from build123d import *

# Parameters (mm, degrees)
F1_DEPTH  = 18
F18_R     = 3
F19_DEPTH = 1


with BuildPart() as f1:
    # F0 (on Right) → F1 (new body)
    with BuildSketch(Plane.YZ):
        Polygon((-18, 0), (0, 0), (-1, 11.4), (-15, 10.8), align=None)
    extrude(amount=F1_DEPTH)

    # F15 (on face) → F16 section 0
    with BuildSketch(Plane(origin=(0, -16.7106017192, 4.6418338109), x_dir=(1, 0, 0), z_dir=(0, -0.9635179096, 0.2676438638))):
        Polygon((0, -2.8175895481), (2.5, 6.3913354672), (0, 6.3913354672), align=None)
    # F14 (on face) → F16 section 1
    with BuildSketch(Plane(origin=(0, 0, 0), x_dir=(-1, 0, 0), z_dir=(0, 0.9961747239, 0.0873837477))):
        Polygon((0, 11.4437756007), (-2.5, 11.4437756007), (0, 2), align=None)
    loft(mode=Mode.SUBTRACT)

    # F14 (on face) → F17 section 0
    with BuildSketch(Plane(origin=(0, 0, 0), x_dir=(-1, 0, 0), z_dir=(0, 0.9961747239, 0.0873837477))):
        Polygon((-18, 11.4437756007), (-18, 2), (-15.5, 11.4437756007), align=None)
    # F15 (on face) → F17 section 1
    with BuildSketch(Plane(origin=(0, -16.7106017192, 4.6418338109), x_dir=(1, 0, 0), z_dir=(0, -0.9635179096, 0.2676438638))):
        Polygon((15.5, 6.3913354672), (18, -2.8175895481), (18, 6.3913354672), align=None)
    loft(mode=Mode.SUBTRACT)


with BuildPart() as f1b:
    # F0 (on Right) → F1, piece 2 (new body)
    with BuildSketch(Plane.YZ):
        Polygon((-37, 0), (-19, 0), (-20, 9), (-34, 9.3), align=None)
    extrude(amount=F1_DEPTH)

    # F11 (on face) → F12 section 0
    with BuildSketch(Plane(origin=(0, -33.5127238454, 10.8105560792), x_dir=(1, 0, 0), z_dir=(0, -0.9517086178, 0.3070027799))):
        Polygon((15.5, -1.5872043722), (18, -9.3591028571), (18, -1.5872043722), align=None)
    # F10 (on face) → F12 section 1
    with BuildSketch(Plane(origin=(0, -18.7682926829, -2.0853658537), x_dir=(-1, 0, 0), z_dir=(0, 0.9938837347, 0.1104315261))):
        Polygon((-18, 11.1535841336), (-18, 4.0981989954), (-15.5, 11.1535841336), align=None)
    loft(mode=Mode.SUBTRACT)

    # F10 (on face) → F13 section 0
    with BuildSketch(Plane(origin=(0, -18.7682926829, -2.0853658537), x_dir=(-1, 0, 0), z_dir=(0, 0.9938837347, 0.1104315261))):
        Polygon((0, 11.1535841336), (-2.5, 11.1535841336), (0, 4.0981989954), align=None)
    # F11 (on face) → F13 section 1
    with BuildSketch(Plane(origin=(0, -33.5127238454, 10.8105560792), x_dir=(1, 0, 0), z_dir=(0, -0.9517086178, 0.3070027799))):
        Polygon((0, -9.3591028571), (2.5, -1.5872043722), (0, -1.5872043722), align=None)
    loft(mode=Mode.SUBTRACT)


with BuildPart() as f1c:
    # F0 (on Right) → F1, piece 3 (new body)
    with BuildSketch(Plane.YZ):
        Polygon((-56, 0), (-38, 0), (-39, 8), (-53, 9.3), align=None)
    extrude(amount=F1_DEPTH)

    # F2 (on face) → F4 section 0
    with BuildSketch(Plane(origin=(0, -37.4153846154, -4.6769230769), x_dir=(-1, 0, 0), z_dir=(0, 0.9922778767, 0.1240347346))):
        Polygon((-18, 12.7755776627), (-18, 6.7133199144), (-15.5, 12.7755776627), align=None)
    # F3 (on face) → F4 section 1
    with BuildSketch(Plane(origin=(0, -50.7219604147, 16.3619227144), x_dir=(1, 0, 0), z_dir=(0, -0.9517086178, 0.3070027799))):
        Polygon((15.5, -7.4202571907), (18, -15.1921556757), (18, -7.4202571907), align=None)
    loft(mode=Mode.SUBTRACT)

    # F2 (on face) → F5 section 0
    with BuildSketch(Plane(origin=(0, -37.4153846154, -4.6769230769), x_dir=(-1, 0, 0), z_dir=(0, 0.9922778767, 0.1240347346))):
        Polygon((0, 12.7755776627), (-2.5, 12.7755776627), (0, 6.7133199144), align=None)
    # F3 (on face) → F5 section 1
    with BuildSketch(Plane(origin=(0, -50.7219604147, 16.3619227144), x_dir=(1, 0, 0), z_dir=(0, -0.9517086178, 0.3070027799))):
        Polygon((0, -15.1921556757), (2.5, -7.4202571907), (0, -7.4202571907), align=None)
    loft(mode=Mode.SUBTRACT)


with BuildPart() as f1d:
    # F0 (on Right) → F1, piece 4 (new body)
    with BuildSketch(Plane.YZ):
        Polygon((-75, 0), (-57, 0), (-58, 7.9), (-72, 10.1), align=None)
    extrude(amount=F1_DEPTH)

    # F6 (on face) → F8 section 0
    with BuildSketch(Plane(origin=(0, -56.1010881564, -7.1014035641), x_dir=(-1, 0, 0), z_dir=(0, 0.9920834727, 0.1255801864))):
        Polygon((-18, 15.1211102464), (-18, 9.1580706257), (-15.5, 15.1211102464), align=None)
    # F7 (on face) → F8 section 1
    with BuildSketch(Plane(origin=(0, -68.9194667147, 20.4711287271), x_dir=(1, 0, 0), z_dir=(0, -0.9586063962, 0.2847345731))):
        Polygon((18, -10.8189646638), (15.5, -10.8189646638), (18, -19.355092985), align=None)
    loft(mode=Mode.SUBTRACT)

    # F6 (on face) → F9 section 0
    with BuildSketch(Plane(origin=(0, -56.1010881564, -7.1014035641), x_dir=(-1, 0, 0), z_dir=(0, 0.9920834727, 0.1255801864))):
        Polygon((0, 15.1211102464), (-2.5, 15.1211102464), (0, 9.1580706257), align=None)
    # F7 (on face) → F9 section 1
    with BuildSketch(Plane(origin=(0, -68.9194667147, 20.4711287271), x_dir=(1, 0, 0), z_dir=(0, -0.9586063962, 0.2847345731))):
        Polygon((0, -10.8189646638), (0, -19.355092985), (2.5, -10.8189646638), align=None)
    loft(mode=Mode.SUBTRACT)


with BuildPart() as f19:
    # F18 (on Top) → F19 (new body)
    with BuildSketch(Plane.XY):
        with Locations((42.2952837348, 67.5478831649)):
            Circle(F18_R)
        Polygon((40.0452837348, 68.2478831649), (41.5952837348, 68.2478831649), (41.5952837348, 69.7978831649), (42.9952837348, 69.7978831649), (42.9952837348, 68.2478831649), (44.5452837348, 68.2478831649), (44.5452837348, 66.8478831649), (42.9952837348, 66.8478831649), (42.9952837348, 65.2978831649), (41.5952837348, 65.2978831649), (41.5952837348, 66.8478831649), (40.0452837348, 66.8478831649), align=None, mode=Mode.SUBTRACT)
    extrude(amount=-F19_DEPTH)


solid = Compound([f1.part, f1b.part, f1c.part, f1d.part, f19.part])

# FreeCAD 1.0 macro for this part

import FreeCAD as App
import Part
import Sketcher
from FreeCAD import Vector
Q = App.Units.Quantity

doc = App.newDocument("Part")
params = doc.addObject("Spreadsheet::Sheet", "Params")
for row, (alias, value) in enumerate([
    ("sketch1_width", "18 mm"),
    ("pad1_length", "18 mm"),
    ("sketch2_width", "2.5 mm"),
    ("sketch3_width", "2.5 mm"),
    ("sketch4_width", "2.5 mm"),
    ("sketch5_width", "2.5 mm"),
    ("sketch6_width", "18 mm"),
    ("pad2_length", "18 mm"),
    ("sketch7_width", "2.5 mm"),
    ("sketch8_width", "2.5 mm"),
    ("sketch9_width", "2.5 mm"),
    ("sketch10_width", "2.5 mm"),
    ("sketch11_width", "18 mm"),
    ("pad3_length", "18 mm"),
    ("sketch12_width", "2.5 mm"),
    ("sketch13_width", "2.5 mm"),
    ("sketch14_width", "2.5 mm"),
    ("sketch15_width", "2.5 mm"),
    ("sketch16_width", "18 mm"),
    ("pad4_length", "18 mm"),
    ("sketch17_width", "2.5 mm"),
    ("sketch18_width", "2.5 mm"),
    ("sketch19_width", "2.5 mm"),
    ("sketch20_width", "2.5 mm"),
    ("sketch21_diameter", "6 mm"),
    ("sketch21_width", "1.4 mm"),
    ("sketch21_width2", "1.55 mm"),
    ("pad5_length", "1 mm"),
], start=1):
    params.set(f"A{row}", alias)
    params.set(f"B{row}", "=" + value)
    params.setAlias(f"B{row}", alias)

body = doc.addObject("PartDesign::Body", "Body")

# Sketch on YZ plane
sketch1 = body.newObject("Sketcher::SketchObject", "Sketch")
sketch1.AttachmentSupport = (doc.getObject("YZ_Plane"), [""])
sketch1.MapMode = "FlatFace"
sketch1.addGeometry(Part.LineSegment(Vector(-18, 0, 0), Vector(0, 0, 0)), False)
sketch1.addGeometry(Part.LineSegment(Vector(0, 0, 0), Vector(-1, 11.4, 0)), False)
sketch1.addGeometry(Part.LineSegment(Vector(-1, 11.4, 0), Vector(-15, 10.8, 0)), False)
sketch1.addGeometry(Part.LineSegment(Vector(-15, 10.8, 0), Vector(-18, 0, 0)), False)
sketch1.addConstraint(Sketcher.Constraint("Coincident", 0, 2, 1, 1))
sketch1.addConstraint(Sketcher.Constraint("Coincident", 1, 2, 2, 1))
sketch1.addConstraint(Sketcher.Constraint("Coincident", 2, 2, 3, 1))
sketch1.addConstraint(Sketcher.Constraint("Coincident", 3, 2, 0, 1))
sketch1.addConstraint(Sketcher.Constraint("Horizontal", 0))
sketch1.addConstraint(Sketcher.Constraint("Coincident", 0, 2, -1, 1))
sketch1.addConstraint(Sketcher.Constraint("DistanceX", 0, 1, 0, 2, Q("18 mm")))
sketch1.addConstraint(Sketcher.Constraint("DistanceX", 1, 2, -1, 1, Q("1 mm")))
sketch1.addConstraint(Sketcher.Constraint("DistanceX", 2, 2, -1, 1, Q("15 mm")))
sketch1.addConstraint(Sketcher.Constraint("DistanceY", -1, 1, 1, 2, Q("11.4 mm")))
sketch1.addConstraint(Sketcher.Constraint("DistanceY", -1, 1, 2, 2, Q("10.8 mm")))
sketch1.setExpression("Constraints[6]", "Params.sketch1_width")
pad1 = body.newObject("PartDesign::Pad", "Pad")
pad1.Profile = sketch1
pad1.setExpression("Length", "Params.pad1_length")

# Sketch on an angled plane
sketch2 = body.newObject("Sketcher::SketchObject", "Sketch001")
sketch2.Placement = App.Placement(Vector(0, -16.710602, 4.641834), App.Rotation(Vector(1, 0, 0), Vector(0, 0.267643864, 0.96351791), Vector(0, -0.96351791, 0.267643864), "ZXY"))
sketch2.addGeometry(Part.LineSegment(Vector(0, -2.81759, 0), Vector(2.5, 6.391335, 0)), False)
sketch2.addGeometry(Part.LineSegment(Vector(2.5, 6.391335, 0), Vector(0, 6.391335, 0)), False)
sketch2.addGeometry(Part.LineSegment(Vector(0, 6.391335, 0), Vector(0, -2.81759, 0)), False)
sketch2.addConstraint(Sketcher.Constraint("Coincident", 0, 2, 1, 1))
sketch2.addConstraint(Sketcher.Constraint("Coincident", 1, 2, 2, 1))
sketch2.addConstraint(Sketcher.Constraint("Coincident", 2, 2, 0, 1))
sketch2.addConstraint(Sketcher.Constraint("Horizontal", 1))
sketch2.addConstraint(Sketcher.Constraint("Vertical", 2))
sketch2.addConstraint(Sketcher.Constraint("PointOnObject", 1, 2, -2))
sketch2.addConstraint(Sketcher.Constraint("DistanceX", 1, 2, 1, 1, Q("2.5 mm")))
sketch2.addConstraint(Sketcher.Constraint("DistanceY", 2, 2, 2, 1, Q("9.208925 mm")))
sketch2.addConstraint(Sketcher.Constraint("DistanceY", 2, 2, -1, 1, Q("2.81759 mm")))
sketch2.setExpression("Constraints[6]", "Params.sketch2_width")

# Sketch on an angled plane
sketch3 = body.newObject("Sketcher::SketchObject", "Sketch002")
sketch3.Placement = App.Placement(Vector(0, 0, 0), App.Rotation(Vector(-1, 0, 0), Vector(0, -0.087383748, 0.996174724), Vector(0, 0.996174724, 0.087383748), "ZXY"))
sketch3.addGeometry(Part.LineSegment(Vector(0, 11.443776, 0), Vector(-2.5, 11.443776, 0)), False)
sketch3.addGeometry(Part.LineSegment(Vector(-2.5, 11.443776, 0), Vector(0, 2, 0)), False)
sketch3.addGeometry(Part.LineSegment(Vector(0, 2, 0), Vector(0, 11.443776, 0)), False)
sketch3.addConstraint(Sketcher.Constraint("Coincident", 0, 2, 1, 1))
sketch3.addConstraint(Sketcher.Constraint("Coincident", 1, 2, 2, 1))
sketch3.addConstraint(Sketcher.Constraint("Coincident", 2, 2, 0, 1))
sketch3.addConstraint(Sketcher.Constraint("Horizontal", 0))
sketch3.addConstraint(Sketcher.Constraint("Vertical", 2))
sketch3.addConstraint(Sketcher.Constraint("PointOnObject", 1, 2, -2))
sketch3.addConstraint(Sketcher.Constraint("DistanceX", 0, 2, 0, 1, Q("2.5 mm")))
sketch3.addConstraint(Sketcher.Constraint("DistanceY", -1, 1, 1, 2, Q("2 mm")))
sketch3.addConstraint(Sketcher.Constraint("Distance", 1, Q("9.769079 mm")))
sketch3.setExpression("Constraints[6]", "Params.sketch3_width")

subtractiveloft = body.newObject("PartDesign::SubtractiveLoft", "SubtractiveLoft")
subtractiveloft.Profile = sketch2
subtractiveloft.Sections = [sketch3]

# Sketch on an angled plane
sketch4 = body.newObject("Sketcher::SketchObject", "Sketch003")
sketch4.Placement = App.Placement(Vector(0, 0, 0), App.Rotation(Vector(-1, 0, 0), Vector(0, -0.087383748, 0.996174724), Vector(0, 0.996174724, 0.087383748), "ZXY"))
sketch4.addGeometry(Part.LineSegment(Vector(-18, 11.443776, 0), Vector(-18, 2, 0)), False)
sketch4.addGeometry(Part.LineSegment(Vector(-18, 2, 0), Vector(-15.5, 11.443776, 0)), False)
sketch4.addGeometry(Part.LineSegment(Vector(-15.5, 11.443776, 0), Vector(-18, 11.443776, 0)), False)
sketch4.addConstraint(Sketcher.Constraint("Coincident", 0, 2, 1, 1))
sketch4.addConstraint(Sketcher.Constraint("Coincident", 1, 2, 2, 1))
sketch4.addConstraint(Sketcher.Constraint("Coincident", 2, 2, 0, 1))
sketch4.addConstraint(Sketcher.Constraint("Vertical", 0))
sketch4.addConstraint(Sketcher.Constraint("Horizontal", 2))
sketch4.addConstraint(Sketcher.Constraint("DistanceX", 2, 2, 2, 1, Q("2.5 mm")))
sketch4.addConstraint(Sketcher.Constraint("DistanceX", 0, 2, -1, 1, Q("18 mm")))
sketch4.addConstraint(Sketcher.Constraint("DistanceY", -1, 1, 0, 2, Q("2 mm")))
sketch4.addConstraint(Sketcher.Constraint("Distance", 1, Q("9.769079 mm")))
sketch4.setExpression("Constraints[5]", "Params.sketch4_width")

# Sketch on an angled plane
sketch5 = body.newObject("Sketcher::SketchObject", "Sketch004")
sketch5.Placement = App.Placement(Vector(0, -16.710602, 4.641834), App.Rotation(Vector(1, 0, 0), Vector(0, 0.267643864, 0.96351791), Vector(0, -0.96351791, 0.267643864), "ZXY"))
sketch5.addGeometry(Part.LineSegment(Vector(15.5, 6.391335, 0), Vector(18, -2.81759, 0)), False)
sketch5.addGeometry(Part.LineSegment(Vector(18, -2.81759, 0), Vector(18, 6.391335, 0)), False)
sketch5.addGeometry(Part.LineSegment(Vector(18, 6.391335, 0), Vector(15.5, 6.391335, 0)), False)
sketch5.addConstraint(Sketcher.Constraint("Coincident", 0, 2, 1, 1))
sketch5.addConstraint(Sketcher.Constraint("Coincident", 1, 2, 2, 1))
sketch5.addConstraint(Sketcher.Constraint("Coincident", 2, 2, 0, 1))
sketch5.addConstraint(Sketcher.Constraint("Vertical", 1))
sketch5.addConstraint(Sketcher.Constraint("Horizontal", 2))
sketch5.addConstraint(Sketcher.Constraint("DistanceX", 2, 2, 2, 1, Q("2.5 mm")))
sketch5.addConstraint(Sketcher.Constraint("DistanceX", -1, 1, 0, 2, Q("18 mm")))
sketch5.addConstraint(Sketcher.Constraint("DistanceY", 1, 1, 1, 2, Q("9.208925 mm")))
sketch5.addConstraint(Sketcher.Constraint("DistanceY", 0, 2, -1, 1, Q("2.81759 mm")))
sketch5.setExpression("Constraints[5]", "Params.sketch5_width")

subtractiveloft2 = body.newObject("PartDesign::SubtractiveLoft", "SubtractiveLoft001")
subtractiveloft2.Profile = sketch4
subtractiveloft2.Sections = [sketch5]
body2 = doc.addObject("PartDesign::Body", "Body001")

# Sketch on YZ plane
sketch6 = body2.newObject("Sketcher::SketchObject", "Sketch005")
sketch6.AttachmentSupport = (doc.getObject("YZ_Plane001"), [""])
sketch6.MapMode = "FlatFace"
sketch6.addGeometry(Part.LineSegment(Vector(-37, 0, 0), Vector(-19, 0, 0)), False)
sketch6.addGeometry(Part.LineSegment(Vector(-19, 0, 0), Vector(-20, 9, 0)), False)
sketch6.addGeometry(Part.LineSegment(Vector(-20, 9, 0), Vector(-34, 9.3, 0)), False)
sketch6.addGeometry(Part.LineSegment(Vector(-34, 9.3, 0), Vector(-37, 0, 0)), False)
sketch6.addConstraint(Sketcher.Constraint("Coincident", 0, 2, 1, 1))
sketch6.addConstraint(Sketcher.Constraint("Coincident", 1, 2, 2, 1))
sketch6.addConstraint(Sketcher.Constraint("Coincident", 2, 2, 3, 1))
sketch6.addConstraint(Sketcher.Constraint("Coincident", 3, 2, 0, 1))
sketch6.addConstraint(Sketcher.Constraint("Horizontal", 0))
sketch6.addConstraint(Sketcher.Constraint("PointOnObject", 0, 2, -1))
sketch6.addConstraint(Sketcher.Constraint("DistanceX", 0, 1, 0, 2, Q("18 mm")))
sketch6.addConstraint(Sketcher.Constraint("DistanceX", 0, 2, -1, 1, Q("19 mm")))
sketch6.addConstraint(Sketcher.Constraint("DistanceX", 1, 2, -1, 1, Q("20 mm")))
sketch6.addConstraint(Sketcher.Constraint("DistanceY", -1, 1, 1, 2, Q("9 mm")))
sketch6.addConstraint(Sketcher.Constraint("DistanceX", 2, 2, -1, 1, Q("34 mm")))
sketch6.addConstraint(Sketcher.Constraint("DistanceY", -1, 1, 2, 2, Q("9.3 mm")))
sketch6.setExpression("Constraints[6]", "Params.sketch6_width")
pad2 = body2.newObject("PartDesign::Pad", "Pad001")
pad2.Profile = sketch6
pad2.setExpression("Length", "Params.pad2_length")

# Sketch on an angled plane
sketch7 = body2.newObject("Sketcher::SketchObject", "Sketch006")
sketch7.Placement = App.Placement(Vector(0, -33.512724, 10.810556), App.Rotation(Vector(1, 0, 0), Vector(0, 0.30700278, 0.951708618), Vector(0, -0.951708618, 0.30700278), "ZXY"))
sketch7.addGeometry(Part.LineSegment(Vector(15.5, -1.587204, 0), Vector(18, -9.359103, 0)), False)
sketch7.addGeometry(Part.LineSegment(Vector(18, -9.359103, 0), Vector(18, -1.587204, 0)), False)
sketch7.addGeometry(Part.LineSegment(Vector(18, -1.587204, 0), Vector(15.5, -1.587204, 0)), False)
sketch7.addConstraint(Sketcher.Constraint("Coincident", 0, 2, 1, 1))
sketch7.addConstraint(Sketcher.Constraint("Coincident", 1, 2, 2, 1))
sketch7.addConstraint(Sketcher.Constraint("Coincident", 2, 2, 0, 1))
sketch7.addConstraint(Sketcher.Constraint("Vertical", 1))
sketch7.addConstraint(Sketcher.Constraint("Horizontal", 2))
sketch7.addConstraint(Sketcher.Constraint("DistanceX", 2, 2, 2, 1, Q("2.5 mm")))
sketch7.addConstraint(Sketcher.Constraint("DistanceX", -1, 1, 0, 2, Q("18 mm")))
sketch7.addConstraint(Sketcher.Constraint("DistanceY", 1, 1, 1, 2, Q("7.771898 mm")))
sketch7.addConstraint(Sketcher.Constraint("DistanceY", 0, 2, -1, 1, Q("9.359103 mm")))
sketch7.setExpression("Constraints[5]", "Params.sketch7_width")

# Sketch on an angled plane
sketch8 = body2.newObject("Sketcher::SketchObject", "Sketch007")
sketch8.Placement = App.Placement(Vector(0, -18.768293, -2.085366), App.Rotation(Vector(-1, 0, 0), Vector(0, -0.110431526, 0.993883735), Vector(0, 0.993883735, 0.110431526), "ZXY"))
sketch8.addGeometry(Part.LineSegment(Vector(-18, 11.153584, 0), Vector(-18, 4.098199, 0)), False)
sketch8.addGeometry(Part.LineSegment(Vector(-18, 4.098199, 0), Vector(-15.5, 11.153584, 0)), False)
sketch8.addGeometry(Part.LineSegment(Vector(-15.5, 11.153584, 0), Vector(-18, 11.153584, 0)), False)
sketch8.addConstraint(Sketcher.Constraint("Coincident", 0, 2, 1, 1))
sketch8.addConstraint(Sketcher.Constraint("Coincident", 1, 2, 2, 1))
sketch8.addConstraint(Sketcher.Constraint("Coincident", 2, 2, 0, 1))
sketch8.addConstraint(Sketcher.Constraint("Vertical", 0))
sketch8.addConstraint(Sketcher.Constraint("Horizontal", 2))
sketch8.addConstraint(Sketcher.Constraint("DistanceX", 2, 2, 2, 1, Q("2.5 mm")))
sketch8.addConstraint(Sketcher.Constraint("DistanceX", 0, 2, -1, 1, Q("18 mm")))
sketch8.addConstraint(Sketcher.Constraint("DistanceY", -1, 1, 0, 2, Q("4.098199 mm")))
sketch8.addConstraint(Sketcher.Constraint("DistanceY", 0, 2, 0, 1, Q("7.055385 mm")))
sketch8.setExpression("Constraints[5]", "Params.sketch8_width")

subtractiveloft3 = body2.newObject("PartDesign::SubtractiveLoft", "SubtractiveLoft002")
subtractiveloft3.Profile = sketch7
subtractiveloft3.Sections = [sketch8]

# Sketch on an angled plane
sketch9 = body2.newObject("Sketcher::SketchObject", "Sketch008")
sketch9.Placement = App.Placement(Vector(0, -18.768293, -2.085366), App.Rotation(Vector(-1, 0, 0), Vector(0, -0.110431526, 0.993883735), Vector(0, 0.993883735, 0.110431526), "ZXY"))
sketch9.addGeometry(Part.LineSegment(Vector(0, 11.153584, 0), Vector(-2.5, 11.153584, 0)), False)
sketch9.addGeometry(Part.LineSegment(Vector(-2.5, 11.153584, 0), Vector(0, 4.098199, 0)), False)
sketch9.addGeometry(Part.LineSegment(Vector(0, 4.098199, 0), Vector(0, 11.153584, 0)), False)
sketch9.addConstraint(Sketcher.Constraint("Coincident", 0, 2, 1, 1))
sketch9.addConstraint(Sketcher.Constraint("Coincident", 1, 2, 2, 1))
sketch9.addConstraint(Sketcher.Constraint("Coincident", 2, 2, 0, 1))
sketch9.addConstraint(Sketcher.Constraint("Horizontal", 0))
sketch9.addConstraint(Sketcher.Constraint("Vertical", 2))
sketch9.addConstraint(Sketcher.Constraint("PointOnObject", 1, 2, -2))
sketch9.addConstraint(Sketcher.Constraint("DistanceX", 0, 2, 0, 1, Q("2.5 mm")))
sketch9.addConstraint(Sketcher.Constraint("DistanceY", -1, 1, 1, 2, Q("4.098199 mm")))
sketch9.addConstraint(Sketcher.Constraint("DistanceY", 2, 1, 2, 2, Q("7.055385 mm")))
sketch9.setExpression("Constraints[6]", "Params.sketch9_width")

# Sketch on an angled plane
sketch10 = body2.newObject("Sketcher::SketchObject", "Sketch009")
sketch10.Placement = App.Placement(Vector(0, -33.512724, 10.810556), App.Rotation(Vector(1, 0, 0), Vector(0, 0.30700278, 0.951708618), Vector(0, -0.951708618, 0.30700278), "ZXY"))
sketch10.addGeometry(Part.LineSegment(Vector(0, -9.359103, 0), Vector(2.5, -1.587204, 0)), False)
sketch10.addGeometry(Part.LineSegment(Vector(2.5, -1.587204, 0), Vector(0, -1.587204, 0)), False)
sketch10.addGeometry(Part.LineSegment(Vector(0, -1.587204, 0), Vector(0, -9.359103, 0)), False)
sketch10.addConstraint(Sketcher.Constraint("Coincident", 0, 2, 1, 1))
sketch10.addConstraint(Sketcher.Constraint("Coincident", 1, 2, 2, 1))
sketch10.addConstraint(Sketcher.Constraint("Coincident", 2, 2, 0, 1))
sketch10.addConstraint(Sketcher.Constraint("Horizontal", 1))
sketch10.addConstraint(Sketcher.Constraint("Vertical", 2))
sketch10.addConstraint(Sketcher.Constraint("PointOnObject", 1, 2, -2))
sketch10.addConstraint(Sketcher.Constraint("DistanceX", 1, 2, 1, 1, Q("2.5 mm")))
sketch10.addConstraint(Sketcher.Constraint("DistanceY", 2, 2, 2, 1, Q("7.771898 mm")))
sketch10.addConstraint(Sketcher.Constraint("DistanceY", 0, 2, -1, 1, Q("1.587204 mm")))
sketch10.setExpression("Constraints[6]", "Params.sketch10_width")

subtractiveloft4 = body2.newObject("PartDesign::SubtractiveLoft", "SubtractiveLoft003")
subtractiveloft4.Profile = sketch9
subtractiveloft4.Sections = [sketch10]
body3 = doc.addObject("PartDesign::Body", "Body002")

# Sketch on YZ plane
sketch11 = body3.newObject("Sketcher::SketchObject", "Sketch010")
sketch11.AttachmentSupport = (doc.getObject("YZ_Plane002"), [""])
sketch11.MapMode = "FlatFace"
sketch11.addGeometry(Part.LineSegment(Vector(-56, 0, 0), Vector(-38, 0, 0)), False)
sketch11.addGeometry(Part.LineSegment(Vector(-38, 0, 0), Vector(-39, 8, 0)), False)
sketch11.addGeometry(Part.LineSegment(Vector(-39, 8, 0), Vector(-53, 9.3, 0)), False)
sketch11.addGeometry(Part.LineSegment(Vector(-53, 9.3, 0), Vector(-56, 0, 0)), False)
sketch11.addConstraint(Sketcher.Constraint("Coincident", 0, 2, 1, 1))
sketch11.addConstraint(Sketcher.Constraint("Coincident", 1, 2, 2, 1))
sketch11.addConstraint(Sketcher.Constraint("Coincident", 2, 2, 3, 1))
sketch11.addConstraint(Sketcher.Constraint("Coincident", 3, 2, 0, 1))
sketch11.addConstraint(Sketcher.Constraint("Horizontal", 0))
sketch11.addConstraint(Sketcher.Constraint("PointOnObject", 0, 2, -1))
sketch11.addConstraint(Sketcher.Constraint("DistanceX", 0, 1, 0, 2, Q("18 mm")))
sketch11.addConstraint(Sketcher.Constraint("DistanceX", 0, 2, -1, 1, Q("38 mm")))
sketch11.addConstraint(Sketcher.Constraint("DistanceX", 1, 2, -1, 1, Q("39 mm")))
sketch11.addConstraint(Sketcher.Constraint("DistanceY", -1, 1, 1, 2, Q("8 mm")))
sketch11.addConstraint(Sketcher.Constraint("DistanceX", 2, 2, -1, 1, Q("53 mm")))
sketch11.addConstraint(Sketcher.Constraint("DistanceY", -1, 1, 2, 2, Q("9.3 mm")))
sketch11.setExpression("Constraints[6]", "Params.sketch11_width")
pad3 = body3.newObject("PartDesign::Pad", "Pad002")
pad3.Profile = sketch11
pad3.setExpression("Length", "Params.pad3_length")

# Sketch on an angled plane
sketch12 = body3.newObject("Sketcher::SketchObject", "Sketch011")
sketch12.Placement = App.Placement(Vector(0, -37.415385, -4.676923), App.Rotation(Vector(-1, 0, 0), Vector(0, -0.124034735, 0.992277877), Vector(0, 0.992277877, 0.124034735), "ZXY"))
sketch12.addGeometry(Part.LineSegment(Vector(-18, 12.775578, 0), Vector(-18, 6.71332, 0)), False)
sketch12.addGeometry(Part.LineSegment(Vector(-18, 6.71332, 0), Vector(-15.5, 12.775578, 0)), False)
sketch12.addGeometry(Part.LineSegment(Vector(-15.5, 12.775578, 0), Vector(-18, 12.775578, 0)), False)
sketch12.addConstraint(Sketcher.Constraint("Coincident", 0, 2, 1, 1))
sketch12.addConstraint(Sketcher.Constraint("Coincident", 1, 2, 2, 1))
sketch12.addConstraint(Sketcher.Constraint("Coincident", 2, 2, 0, 1))
sketch12.addConstraint(Sketcher.Constraint("Vertical", 0))
sketch12.addConstraint(Sketcher.Constraint("Horizontal", 2))
sketch12.addConstraint(Sketcher.Constraint("DistanceX", 2, 2, 2, 1, Q("2.5 mm")))
sketch12.addConstraint(Sketcher.Constraint("DistanceX", 0, 2, -1, 1, Q("18 mm")))
sketch12.addConstraint(Sketcher.Constraint("DistanceY", 0, 2, 0, 1, Q("6.062258 mm")))
sketch12.addConstraint(Sketcher.Constraint("DistanceY", -1, 1, 0, 2, Q("6.71332 mm")))
sketch12.setExpression("Constraints[5]", "Params.sketch12_width")

# Sketch on an angled plane
sketch13 = body3.newObject("Sketcher::SketchObject", "Sketch012")
sketch13.Placement = App.Placement(Vector(0, -50.72196, 16.361923), App.Rotation(Vector(1, 0, 0), Vector(0, 0.30700278, 0.951708618), Vector(0, -0.951708618, 0.30700278), "ZXY"))
sketch13.addGeometry(Part.LineSegment(Vector(15.5, -7.420257, 0), Vector(18, -15.192156, 0)), False)
sketch13.addGeometry(Part.LineSegment(Vector(18, -15.192156, 0), Vector(18, -7.420257, 0)), False)
sketch13.addGeometry(Part.LineSegment(Vector(18, -7.420257, 0), Vector(15.5, -7.420257, 0)), False)
sketch13.addConstraint(Sketcher.Constraint("Coincident", 0, 2, 1, 1))
sketch13.addConstraint(Sketcher.Constraint("Coincident", 1, 2, 2, 1))
sketch13.addConstraint(Sketcher.Constraint("Coincident", 2, 2, 0, 1))
sketch13.addConstraint(Sketcher.Constraint("Vertical", 1))
sketch13.addConstraint(Sketcher.Constraint("Horizontal", 2))
sketch13.addConstraint(Sketcher.Constraint("DistanceX", 2, 2, 2, 1, Q("2.5 mm")))
sketch13.addConstraint(Sketcher.Constraint("DistanceX", -1, 1, 0, 2, Q("18 mm")))
sketch13.addConstraint(Sketcher.Constraint("DistanceY", 1, 1, 1, 2, Q("7.771898 mm")))
sketch13.addConstraint(Sketcher.Constraint("DistanceY", 0, 2, -1, 1, Q("15.192156 mm")))
sketch13.setExpression("Constraints[5]", "Params.sketch13_width")

subtractiveloft5 = body3.newObject("PartDesign::SubtractiveLoft", "SubtractiveLoft004")
subtractiveloft5.Profile = sketch12
subtractiveloft5.Sections = [sketch13]

# Sketch on an angled plane
sketch14 = body3.newObject("Sketcher::SketchObject", "Sketch013")
sketch14.Placement = App.Placement(Vector(0, -37.415385, -4.676923), App.Rotation(Vector(-1, 0, 0), Vector(0, -0.124034735, 0.992277877), Vector(0, 0.992277877, 0.124034735), "ZXY"))
sketch14.addGeometry(Part.LineSegment(Vector(0, 12.775578, 0), Vector(-2.5, 12.775578, 0)), False)
sketch14.addGeometry(Part.LineSegment(Vector(-2.5, 12.775578, 0), Vector(0, 6.71332, 0)), False)
sketch14.addGeometry(Part.LineSegment(Vector(0, 6.71332, 0), Vector(0, 12.775578, 0)), False)
sketch14.addConstraint(Sketcher.Constraint("Coincident", 0, 2, 1, 1))
sketch14.addConstraint(Sketcher.Constraint("Coincident", 1, 2, 2, 1))
sketch14.addConstraint(Sketcher.Constraint("Coincident", 2, 2, 0, 1))
sketch14.addConstraint(Sketcher.Constraint("Horizontal", 0))
sketch14.addConstraint(Sketcher.Constraint("Vertical", 2))
sketch14.addConstraint(Sketcher.Constraint("PointOnObject", 1, 2, -2))
sketch14.addConstraint(Sketcher.Constraint("DistanceX", 0, 2, 0, 1, Q("2.5 mm")))
sketch14.addConstraint(Sketcher.Constraint("DistanceY", 2, 1, 2, 2, Q("6.062258 mm")))
sketch14.addConstraint(Sketcher.Constraint("DistanceY", -1, 1, 1, 2, Q("6.71332 mm")))
sketch14.setExpression("Constraints[6]", "Params.sketch14_width")

# Sketch on an angled plane
sketch15 = body3.newObject("Sketcher::SketchObject", "Sketch014")
sketch15.Placement = App.Placement(Vector(0, -50.72196, 16.361923), App.Rotation(Vector(1, 0, 0), Vector(0, 0.30700278, 0.951708618), Vector(0, -0.951708618, 0.30700278), "ZXY"))
sketch15.addGeometry(Part.LineSegment(Vector(0, -15.192156, 0), Vector(2.5, -7.420257, 0)), False)
sketch15.addGeometry(Part.LineSegment(Vector(2.5, -7.420257, 0), Vector(0, -7.420257, 0)), False)
sketch15.addGeometry(Part.LineSegment(Vector(0, -7.420257, 0), Vector(0, -15.192156, 0)), False)
sketch15.addConstraint(Sketcher.Constraint("Coincident", 0, 2, 1, 1))
sketch15.addConstraint(Sketcher.Constraint("Coincident", 1, 2, 2, 1))
sketch15.addConstraint(Sketcher.Constraint("Coincident", 2, 2, 0, 1))
sketch15.addConstraint(Sketcher.Constraint("Horizontal", 1))
sketch15.addConstraint(Sketcher.Constraint("Vertical", 2))
sketch15.addConstraint(Sketcher.Constraint("PointOnObject", 1, 2, -2))
sketch15.addConstraint(Sketcher.Constraint("DistanceX", 1, 2, 1, 1, Q("2.5 mm")))
sketch15.addConstraint(Sketcher.Constraint("DistanceY", 2, 2, 2, 1, Q("7.771898 mm")))
sketch15.addConstraint(Sketcher.Constraint("DistanceY", 0, 2, -1, 1, Q("7.420257 mm")))
sketch15.setExpression("Constraints[6]", "Params.sketch15_width")

subtractiveloft6 = body3.newObject("PartDesign::SubtractiveLoft", "SubtractiveLoft005")
subtractiveloft6.Profile = sketch14
subtractiveloft6.Sections = [sketch15]
body4 = doc.addObject("PartDesign::Body", "Body003")

# Sketch on YZ plane
sketch16 = body4.newObject("Sketcher::SketchObject", "Sketch015")
sketch16.AttachmentSupport = (doc.getObject("YZ_Plane003"), [""])
sketch16.MapMode = "FlatFace"
sketch16.addGeometry(Part.LineSegment(Vector(-75, 0, 0), Vector(-57, 0, 0)), False)
sketch16.addGeometry(Part.LineSegment(Vector(-57, 0, 0), Vector(-58, 7.9, 0)), False)
sketch16.addGeometry(Part.LineSegment(Vector(-58, 7.9, 0), Vector(-72, 10.1, 0)), False)
sketch16.addGeometry(Part.LineSegment(Vector(-72, 10.1, 0), Vector(-75, 0, 0)), False)
sketch16.addConstraint(Sketcher.Constraint("Coincident", 0, 2, 1, 1))
sketch16.addConstraint(Sketcher.Constraint("Coincident", 1, 2, 2, 1))
sketch16.addConstraint(Sketcher.Constraint("Coincident", 2, 2, 3, 1))
sketch16.addConstraint(Sketcher.Constraint("Coincident", 3, 2, 0, 1))
sketch16.addConstraint(Sketcher.Constraint("Horizontal", 0))
sketch16.addConstraint(Sketcher.Constraint("PointOnObject", 0, 2, -1))
sketch16.addConstraint(Sketcher.Constraint("DistanceX", 0, 1, 0, 2, Q("18 mm")))
sketch16.addConstraint(Sketcher.Constraint("DistanceX", 0, 2, -1, 1, Q("57 mm")))
sketch16.addConstraint(Sketcher.Constraint("DistanceX", 1, 2, -1, 1, Q("58 mm")))
sketch16.addConstraint(Sketcher.Constraint("DistanceX", 2, 2, -1, 1, Q("72 mm")))
sketch16.addConstraint(Sketcher.Constraint("DistanceY", -1, 1, 1, 2, Q("7.9 mm")))
sketch16.addConstraint(Sketcher.Constraint("DistanceY", -1, 1, 2, 2, Q("10.1 mm")))
sketch16.setExpression("Constraints[6]", "Params.sketch16_width")
pad4 = body4.newObject("PartDesign::Pad", "Pad003")
pad4.Profile = sketch16
pad4.setExpression("Length", "Params.pad4_length")

# Sketch on an angled plane
sketch17 = body4.newObject("Sketcher::SketchObject", "Sketch016")
sketch17.Placement = App.Placement(Vector(0, -56.101088, -7.101404), App.Rotation(Vector(-1, 0, 0), Vector(0, -0.125580186, 0.992083473), Vector(0, 0.992083473, 0.125580186), "ZXY"))
sketch17.addGeometry(Part.LineSegment(Vector(-18, 15.12111, 0), Vector(-18, 9.158071, 0)), False)
sketch17.addGeometry(Part.LineSegment(Vector(-18, 9.158071, 0), Vector(-15.5, 15.12111, 0)), False)
sketch17.addGeometry(Part.LineSegment(Vector(-15.5, 15.12111, 0), Vector(-18, 15.12111, 0)), False)
sketch17.addConstraint(Sketcher.Constraint("Coincident", 0, 2, 1, 1))
sketch17.addConstraint(Sketcher.Constraint("Coincident", 1, 2, 2, 1))
sketch17.addConstraint(Sketcher.Constraint("Coincident", 2, 2, 0, 1))
sketch17.addConstraint(Sketcher.Constraint("Vertical", 0))
sketch17.addConstraint(Sketcher.Constraint("Horizontal", 2))
sketch17.addConstraint(Sketcher.Constraint("DistanceX", 2, 2, 2, 1, Q("2.5 mm")))
sketch17.addConstraint(Sketcher.Constraint("DistanceX", 0, 2, -1, 1, Q("18 mm")))
sketch17.addConstraint(Sketcher.Constraint("Distance", 1, Q("6.465898 mm")))
sketch17.addConstraint(Sketcher.Constraint("DistanceY", -1, 1, 0, 2, Q("9.158071 mm")))
sketch17.setExpression("Constraints[5]", "Params.sketch17_width")

# Sketch on an angled plane
sketch18 = body4.newObject("Sketcher::SketchObject", "Sketch017")
sketch18.Placement = App.Placement(Vector(0, -68.919467, 20.471129), App.Rotation(Vector(1, 0, 0), Vector(0, 0.284734573, 0.958606396), Vector(0, -0.958606396, 0.284734573), "ZXY"))
sketch18.addGeometry(Part.LineSegment(Vector(18, -10.818965, 0), Vector(15.5, -10.818965, 0)), False)
sketch18.addGeometry(Part.LineSegment(Vector(15.5, -10.818965, 0), Vector(18, -19.355093, 0)), False)
sketch18.addGeometry(Part.LineSegment(Vector(18, -19.355093, 0), Vector(18, -10.818965, 0)), False)
sketch18.addConstraint(Sketcher.Constraint("Coincident", 0, 2, 1, 1))
sketch18.addConstraint(Sketcher.Constraint("Coincident", 1, 2, 2, 1))
sketch18.addConstraint(Sketcher.Constraint("Coincident", 2, 2, 0, 1))
sketch18.addConstraint(Sketcher.Constraint("Horizontal", 0))
sketch18.addConstraint(Sketcher.Constraint("Vertical", 2))
sketch18.addConstraint(Sketcher.Constraint("DistanceX", 0, 2, 0, 1, Q("2.5 mm")))
sketch18.addConstraint(Sketcher.Constraint("DistanceX", -1, 1, 1, 2, Q("18 mm")))
sketch18.addConstraint(Sketcher.Constraint("DistanceY", 2, 1, 2, 2, Q("8.536128 mm")))
sketch18.addConstraint(Sketcher.Constraint("DistanceY", 0, 2, -1, 1, Q("10.818965 mm")))
sketch18.setExpression("Constraints[5]", "Params.sketch18_width")

subtractiveloft7 = body4.newObject("PartDesign::SubtractiveLoft", "SubtractiveLoft006")
subtractiveloft7.Profile = sketch17
subtractiveloft7.Sections = [sketch18]

# Sketch on an angled plane
sketch19 = body4.newObject("Sketcher::SketchObject", "Sketch018")
sketch19.Placement = App.Placement(Vector(0, -56.101088, -7.101404), App.Rotation(Vector(-1, 0, 0), Vector(0, -0.125580186, 0.992083473), Vector(0, 0.992083473, 0.125580186), "ZXY"))
sketch19.addGeometry(Part.LineSegment(Vector(0, 15.12111, 0), Vector(-2.5, 15.12111, 0)), False)
sketch19.addGeometry(Part.LineSegment(Vector(-2.5, 15.12111, 0), Vector(0, 9.158071, 0)), False)
sketch19.addGeometry(Part.LineSegment(Vector(0, 9.158071, 0), Vector(0, 15.12111, 0)), False)
sketch19.addConstraint(Sketcher.Constraint("Coincident", 0, 2, 1, 1))
sketch19.addConstraint(Sketcher.Constraint("Coincident", 1, 2, 2, 1))
sketch19.addConstraint(Sketcher.Constraint("Coincident", 2, 2, 0, 1))
sketch19.addConstraint(Sketcher.Constraint("Horizontal", 0))
sketch19.addConstraint(Sketcher.Constraint("Vertical", 2))
sketch19.addConstraint(Sketcher.Constraint("PointOnObject", 1, 2, -2))
sketch19.addConstraint(Sketcher.Constraint("DistanceX", 0, 2, 0, 1, Q("2.5 mm")))
sketch19.addConstraint(Sketcher.Constraint("Distance", 1, Q("6.465898 mm")))
sketch19.addConstraint(Sketcher.Constraint("DistanceY", -1, 1, 0, 2, Q("15.12111 mm")))
sketch19.setExpression("Constraints[6]", "Params.sketch19_width")

# Sketch on an angled plane
sketch20 = body4.newObject("Sketcher::SketchObject", "Sketch019")
sketch20.Placement = App.Placement(Vector(0, -68.919467, 20.471129), App.Rotation(Vector(1, 0, 0), Vector(0, 0.284734573, 0.958606396), Vector(0, -0.958606396, 0.284734573), "ZXY"))
sketch20.addGeometry(Part.LineSegment(Vector(0, -10.818965, 0), Vector(0, -19.355093, 0)), False)
sketch20.addGeometry(Part.LineSegment(Vector(0, -19.355093, 0), Vector(2.5, -10.818965, 0)), False)
sketch20.addGeometry(Part.LineSegment(Vector(2.5, -10.818965, 0), Vector(0, -10.818965, 0)), False)
sketch20.addConstraint(Sketcher.Constraint("Coincident", 0, 2, 1, 1))
sketch20.addConstraint(Sketcher.Constraint("Coincident", 1, 2, 2, 1))
sketch20.addConstraint(Sketcher.Constraint("Coincident", 2, 2, 0, 1))
sketch20.addConstraint(Sketcher.Constraint("Vertical", 0))
sketch20.addConstraint(Sketcher.Constraint("Horizontal", 2))
sketch20.addConstraint(Sketcher.Constraint("PointOnObject", 0, 2, -2))
sketch20.addConstraint(Sketcher.Constraint("DistanceX", 2, 2, 2, 1, Q("2.5 mm")))
sketch20.addConstraint(Sketcher.Constraint("DistanceY", 0, 2, 0, 1, Q("8.536128 mm")))
sketch20.addConstraint(Sketcher.Constraint("DistanceY", 0, 2, -1, 1, Q("19.355093 mm")))
sketch20.setExpression("Constraints[6]", "Params.sketch20_width")

subtractiveloft8 = body4.newObject("PartDesign::SubtractiveLoft", "SubtractiveLoft007")
subtractiveloft8.Profile = sketch19
subtractiveloft8.Sections = [sketch20]
body5 = doc.addObject("PartDesign::Body", "Body004")

# Sketch on XY plane
sketch21 = body5.newObject("Sketcher::SketchObject", "Sketch020")
sketch21.AttachmentSupport = (doc.getObject("XY_Plane004"), [""])
sketch21.MapMode = "FlatFace"
sketch21.addGeometry(Part.Circle(Vector(42.295284, 67.547883, 0), Vector(0, 0, 1), 3), False)
sketch21.addGeometry(Part.LineSegment(Vector(40.045284, 66.847883, 0), Vector(40.045284, 68.247883, 0)), False)
sketch21.addGeometry(Part.LineSegment(Vector(40.045284, 68.247883, 0), Vector(41.595284, 68.247883, 0)), False)
sketch21.addGeometry(Part.LineSegment(Vector(41.595284, 68.247883, 0), Vector(41.595284, 69.797883, 0)), False)
sketch21.addGeometry(Part.LineSegment(Vector(41.595284, 69.797883, 0), Vector(42.995284, 69.797883, 0)), False)
sketch21.addGeometry(Part.LineSegment(Vector(42.995284, 69.797883, 0), Vector(42.995284, 68.247883, 0)), False)
sketch21.addGeometry(Part.LineSegment(Vector(42.995284, 68.247883, 0), Vector(44.545284, 68.247883, 0)), False)
sketch21.addGeometry(Part.LineSegment(Vector(44.545284, 68.247883, 0), Vector(44.545284, 66.847883, 0)), False)
sketch21.addGeometry(Part.LineSegment(Vector(44.545284, 66.847883, 0), Vector(42.995284, 66.847883, 0)), False)
sketch21.addGeometry(Part.LineSegment(Vector(42.995284, 66.847883, 0), Vector(42.995284, 65.297883, 0)), False)
sketch21.addGeometry(Part.LineSegment(Vector(42.995284, 65.297883, 0), Vector(41.595284, 65.297883, 0)), False)
sketch21.addGeometry(Part.LineSegment(Vector(41.595284, 65.297883, 0), Vector(41.595284, 66.847883, 0)), False)
sketch21.addGeometry(Part.LineSegment(Vector(41.595284, 66.847883, 0), Vector(40.045284, 66.847883, 0)), False)
sketch21.addConstraint(Sketcher.Constraint("Coincident", 1, 2, 2, 1))
sketch21.addConstraint(Sketcher.Constraint("Coincident", 2, 2, 3, 1))
sketch21.addConstraint(Sketcher.Constraint("Coincident", 3, 2, 4, 1))
sketch21.addConstraint(Sketcher.Constraint("Coincident", 4, 2, 5, 1))
sketch21.addConstraint(Sketcher.Constraint("Coincident", 5, 2, 6, 1))
sketch21.addConstraint(Sketcher.Constraint("Coincident", 6, 2, 7, 1))
sketch21.addConstraint(Sketcher.Constraint("Coincident", 7, 2, 8, 1))
sketch21.addConstraint(Sketcher.Constraint("Coincident", 8, 2, 9, 1))
sketch21.addConstraint(Sketcher.Constraint("Coincident", 9, 2, 10, 1))
sketch21.addConstraint(Sketcher.Constraint("Coincident", 10, 2, 11, 1))
sketch21.addConstraint(Sketcher.Constraint("Coincident", 11, 2, 12, 1))
sketch21.addConstraint(Sketcher.Constraint("Coincident", 12, 2, 1, 1))
sketch21.addConstraint(Sketcher.Constraint("Vertical", 1))
sketch21.addConstraint(Sketcher.Constraint("Horizontal", 2))
sketch21.addConstraint(Sketcher.Constraint("Vertical", 3))
sketch21.addConstraint(Sketcher.Constraint("Horizontal", 4))
sketch21.addConstraint(Sketcher.Constraint("Vertical", 5))
sketch21.addConstraint(Sketcher.Constraint("Horizontal", 6))
sketch21.addConstraint(Sketcher.Constraint("Vertical", 7))
sketch21.addConstraint(Sketcher.Constraint("Horizontal", 8))
sketch21.addConstraint(Sketcher.Constraint("Vertical", 9))
sketch21.addConstraint(Sketcher.Constraint("Horizontal", 10))
sketch21.addConstraint(Sketcher.Constraint("Vertical", 11))
sketch21.addConstraint(Sketcher.Constraint("Horizontal", 12))
sketch21.addConstraint(Sketcher.Constraint("Horizontal", 2, 2, 5, 2))
sketch21.addConstraint(Sketcher.Constraint("Horizontal", 8, 2, 11, 2))
sketch21.addConstraint(Sketcher.Constraint("Vertical", 5, 2, 8, 2))
sketch21.addConstraint(Sketcher.Constraint("Vertical", 3, 2, 10, 2))
sketch21.addConstraint(Sketcher.Constraint("Equal", 2, 6))
sketch21.addConstraint(Sketcher.Constraint("Equal", 10, 1))
sketch21.addConstraint(Sketcher.Constraint("Equal", 12, 3))
sketch21.addConstraint(Sketcher.Constraint("Equal", 5, 9))
sketch21.addConstraint(Sketcher.Constraint("Diameter", 0, Q("6 mm")))
sketch21.addConstraint(Sketcher.Constraint("DistanceX", 4, 1, 4, 2, Q("1.4 mm")))
sketch21.addConstraint(Sketcher.Constraint("DistanceX", 2, 1, 2, 2, Q("1.55 mm")))
sketch21.addConstraint(Sketcher.Constraint("DistanceY", 0, 3, 1, 2, Q("0.7 mm")))
sketch21.addConstraint(Sketcher.Constraint("DistanceX", 2, 2, 0, 3, Q("0.7 mm")))
sketch21.addConstraint(Sketcher.Constraint("DistanceX", -1, 1, 0, 3, Q("42.295284 mm")))
sketch21.addConstraint(Sketcher.Constraint("DistanceY", -1, 1, 0, 3, Q("67.547883 mm")))
sketch21.setExpression("Constraints[32]", "Params.sketch21_diameter")
sketch21.setExpression("Constraints[33]", "Params.sketch21_width")
sketch21.setExpression("Constraints[34]", "Params.sketch21_width2")
pad5 = body5.newObject("PartDesign::Pad", "Pad004")
pad5.Profile = sketch21
pad5.setExpression("Length", "Params.pad5_length")
pad5.Reversed = True

doc.recompute()
